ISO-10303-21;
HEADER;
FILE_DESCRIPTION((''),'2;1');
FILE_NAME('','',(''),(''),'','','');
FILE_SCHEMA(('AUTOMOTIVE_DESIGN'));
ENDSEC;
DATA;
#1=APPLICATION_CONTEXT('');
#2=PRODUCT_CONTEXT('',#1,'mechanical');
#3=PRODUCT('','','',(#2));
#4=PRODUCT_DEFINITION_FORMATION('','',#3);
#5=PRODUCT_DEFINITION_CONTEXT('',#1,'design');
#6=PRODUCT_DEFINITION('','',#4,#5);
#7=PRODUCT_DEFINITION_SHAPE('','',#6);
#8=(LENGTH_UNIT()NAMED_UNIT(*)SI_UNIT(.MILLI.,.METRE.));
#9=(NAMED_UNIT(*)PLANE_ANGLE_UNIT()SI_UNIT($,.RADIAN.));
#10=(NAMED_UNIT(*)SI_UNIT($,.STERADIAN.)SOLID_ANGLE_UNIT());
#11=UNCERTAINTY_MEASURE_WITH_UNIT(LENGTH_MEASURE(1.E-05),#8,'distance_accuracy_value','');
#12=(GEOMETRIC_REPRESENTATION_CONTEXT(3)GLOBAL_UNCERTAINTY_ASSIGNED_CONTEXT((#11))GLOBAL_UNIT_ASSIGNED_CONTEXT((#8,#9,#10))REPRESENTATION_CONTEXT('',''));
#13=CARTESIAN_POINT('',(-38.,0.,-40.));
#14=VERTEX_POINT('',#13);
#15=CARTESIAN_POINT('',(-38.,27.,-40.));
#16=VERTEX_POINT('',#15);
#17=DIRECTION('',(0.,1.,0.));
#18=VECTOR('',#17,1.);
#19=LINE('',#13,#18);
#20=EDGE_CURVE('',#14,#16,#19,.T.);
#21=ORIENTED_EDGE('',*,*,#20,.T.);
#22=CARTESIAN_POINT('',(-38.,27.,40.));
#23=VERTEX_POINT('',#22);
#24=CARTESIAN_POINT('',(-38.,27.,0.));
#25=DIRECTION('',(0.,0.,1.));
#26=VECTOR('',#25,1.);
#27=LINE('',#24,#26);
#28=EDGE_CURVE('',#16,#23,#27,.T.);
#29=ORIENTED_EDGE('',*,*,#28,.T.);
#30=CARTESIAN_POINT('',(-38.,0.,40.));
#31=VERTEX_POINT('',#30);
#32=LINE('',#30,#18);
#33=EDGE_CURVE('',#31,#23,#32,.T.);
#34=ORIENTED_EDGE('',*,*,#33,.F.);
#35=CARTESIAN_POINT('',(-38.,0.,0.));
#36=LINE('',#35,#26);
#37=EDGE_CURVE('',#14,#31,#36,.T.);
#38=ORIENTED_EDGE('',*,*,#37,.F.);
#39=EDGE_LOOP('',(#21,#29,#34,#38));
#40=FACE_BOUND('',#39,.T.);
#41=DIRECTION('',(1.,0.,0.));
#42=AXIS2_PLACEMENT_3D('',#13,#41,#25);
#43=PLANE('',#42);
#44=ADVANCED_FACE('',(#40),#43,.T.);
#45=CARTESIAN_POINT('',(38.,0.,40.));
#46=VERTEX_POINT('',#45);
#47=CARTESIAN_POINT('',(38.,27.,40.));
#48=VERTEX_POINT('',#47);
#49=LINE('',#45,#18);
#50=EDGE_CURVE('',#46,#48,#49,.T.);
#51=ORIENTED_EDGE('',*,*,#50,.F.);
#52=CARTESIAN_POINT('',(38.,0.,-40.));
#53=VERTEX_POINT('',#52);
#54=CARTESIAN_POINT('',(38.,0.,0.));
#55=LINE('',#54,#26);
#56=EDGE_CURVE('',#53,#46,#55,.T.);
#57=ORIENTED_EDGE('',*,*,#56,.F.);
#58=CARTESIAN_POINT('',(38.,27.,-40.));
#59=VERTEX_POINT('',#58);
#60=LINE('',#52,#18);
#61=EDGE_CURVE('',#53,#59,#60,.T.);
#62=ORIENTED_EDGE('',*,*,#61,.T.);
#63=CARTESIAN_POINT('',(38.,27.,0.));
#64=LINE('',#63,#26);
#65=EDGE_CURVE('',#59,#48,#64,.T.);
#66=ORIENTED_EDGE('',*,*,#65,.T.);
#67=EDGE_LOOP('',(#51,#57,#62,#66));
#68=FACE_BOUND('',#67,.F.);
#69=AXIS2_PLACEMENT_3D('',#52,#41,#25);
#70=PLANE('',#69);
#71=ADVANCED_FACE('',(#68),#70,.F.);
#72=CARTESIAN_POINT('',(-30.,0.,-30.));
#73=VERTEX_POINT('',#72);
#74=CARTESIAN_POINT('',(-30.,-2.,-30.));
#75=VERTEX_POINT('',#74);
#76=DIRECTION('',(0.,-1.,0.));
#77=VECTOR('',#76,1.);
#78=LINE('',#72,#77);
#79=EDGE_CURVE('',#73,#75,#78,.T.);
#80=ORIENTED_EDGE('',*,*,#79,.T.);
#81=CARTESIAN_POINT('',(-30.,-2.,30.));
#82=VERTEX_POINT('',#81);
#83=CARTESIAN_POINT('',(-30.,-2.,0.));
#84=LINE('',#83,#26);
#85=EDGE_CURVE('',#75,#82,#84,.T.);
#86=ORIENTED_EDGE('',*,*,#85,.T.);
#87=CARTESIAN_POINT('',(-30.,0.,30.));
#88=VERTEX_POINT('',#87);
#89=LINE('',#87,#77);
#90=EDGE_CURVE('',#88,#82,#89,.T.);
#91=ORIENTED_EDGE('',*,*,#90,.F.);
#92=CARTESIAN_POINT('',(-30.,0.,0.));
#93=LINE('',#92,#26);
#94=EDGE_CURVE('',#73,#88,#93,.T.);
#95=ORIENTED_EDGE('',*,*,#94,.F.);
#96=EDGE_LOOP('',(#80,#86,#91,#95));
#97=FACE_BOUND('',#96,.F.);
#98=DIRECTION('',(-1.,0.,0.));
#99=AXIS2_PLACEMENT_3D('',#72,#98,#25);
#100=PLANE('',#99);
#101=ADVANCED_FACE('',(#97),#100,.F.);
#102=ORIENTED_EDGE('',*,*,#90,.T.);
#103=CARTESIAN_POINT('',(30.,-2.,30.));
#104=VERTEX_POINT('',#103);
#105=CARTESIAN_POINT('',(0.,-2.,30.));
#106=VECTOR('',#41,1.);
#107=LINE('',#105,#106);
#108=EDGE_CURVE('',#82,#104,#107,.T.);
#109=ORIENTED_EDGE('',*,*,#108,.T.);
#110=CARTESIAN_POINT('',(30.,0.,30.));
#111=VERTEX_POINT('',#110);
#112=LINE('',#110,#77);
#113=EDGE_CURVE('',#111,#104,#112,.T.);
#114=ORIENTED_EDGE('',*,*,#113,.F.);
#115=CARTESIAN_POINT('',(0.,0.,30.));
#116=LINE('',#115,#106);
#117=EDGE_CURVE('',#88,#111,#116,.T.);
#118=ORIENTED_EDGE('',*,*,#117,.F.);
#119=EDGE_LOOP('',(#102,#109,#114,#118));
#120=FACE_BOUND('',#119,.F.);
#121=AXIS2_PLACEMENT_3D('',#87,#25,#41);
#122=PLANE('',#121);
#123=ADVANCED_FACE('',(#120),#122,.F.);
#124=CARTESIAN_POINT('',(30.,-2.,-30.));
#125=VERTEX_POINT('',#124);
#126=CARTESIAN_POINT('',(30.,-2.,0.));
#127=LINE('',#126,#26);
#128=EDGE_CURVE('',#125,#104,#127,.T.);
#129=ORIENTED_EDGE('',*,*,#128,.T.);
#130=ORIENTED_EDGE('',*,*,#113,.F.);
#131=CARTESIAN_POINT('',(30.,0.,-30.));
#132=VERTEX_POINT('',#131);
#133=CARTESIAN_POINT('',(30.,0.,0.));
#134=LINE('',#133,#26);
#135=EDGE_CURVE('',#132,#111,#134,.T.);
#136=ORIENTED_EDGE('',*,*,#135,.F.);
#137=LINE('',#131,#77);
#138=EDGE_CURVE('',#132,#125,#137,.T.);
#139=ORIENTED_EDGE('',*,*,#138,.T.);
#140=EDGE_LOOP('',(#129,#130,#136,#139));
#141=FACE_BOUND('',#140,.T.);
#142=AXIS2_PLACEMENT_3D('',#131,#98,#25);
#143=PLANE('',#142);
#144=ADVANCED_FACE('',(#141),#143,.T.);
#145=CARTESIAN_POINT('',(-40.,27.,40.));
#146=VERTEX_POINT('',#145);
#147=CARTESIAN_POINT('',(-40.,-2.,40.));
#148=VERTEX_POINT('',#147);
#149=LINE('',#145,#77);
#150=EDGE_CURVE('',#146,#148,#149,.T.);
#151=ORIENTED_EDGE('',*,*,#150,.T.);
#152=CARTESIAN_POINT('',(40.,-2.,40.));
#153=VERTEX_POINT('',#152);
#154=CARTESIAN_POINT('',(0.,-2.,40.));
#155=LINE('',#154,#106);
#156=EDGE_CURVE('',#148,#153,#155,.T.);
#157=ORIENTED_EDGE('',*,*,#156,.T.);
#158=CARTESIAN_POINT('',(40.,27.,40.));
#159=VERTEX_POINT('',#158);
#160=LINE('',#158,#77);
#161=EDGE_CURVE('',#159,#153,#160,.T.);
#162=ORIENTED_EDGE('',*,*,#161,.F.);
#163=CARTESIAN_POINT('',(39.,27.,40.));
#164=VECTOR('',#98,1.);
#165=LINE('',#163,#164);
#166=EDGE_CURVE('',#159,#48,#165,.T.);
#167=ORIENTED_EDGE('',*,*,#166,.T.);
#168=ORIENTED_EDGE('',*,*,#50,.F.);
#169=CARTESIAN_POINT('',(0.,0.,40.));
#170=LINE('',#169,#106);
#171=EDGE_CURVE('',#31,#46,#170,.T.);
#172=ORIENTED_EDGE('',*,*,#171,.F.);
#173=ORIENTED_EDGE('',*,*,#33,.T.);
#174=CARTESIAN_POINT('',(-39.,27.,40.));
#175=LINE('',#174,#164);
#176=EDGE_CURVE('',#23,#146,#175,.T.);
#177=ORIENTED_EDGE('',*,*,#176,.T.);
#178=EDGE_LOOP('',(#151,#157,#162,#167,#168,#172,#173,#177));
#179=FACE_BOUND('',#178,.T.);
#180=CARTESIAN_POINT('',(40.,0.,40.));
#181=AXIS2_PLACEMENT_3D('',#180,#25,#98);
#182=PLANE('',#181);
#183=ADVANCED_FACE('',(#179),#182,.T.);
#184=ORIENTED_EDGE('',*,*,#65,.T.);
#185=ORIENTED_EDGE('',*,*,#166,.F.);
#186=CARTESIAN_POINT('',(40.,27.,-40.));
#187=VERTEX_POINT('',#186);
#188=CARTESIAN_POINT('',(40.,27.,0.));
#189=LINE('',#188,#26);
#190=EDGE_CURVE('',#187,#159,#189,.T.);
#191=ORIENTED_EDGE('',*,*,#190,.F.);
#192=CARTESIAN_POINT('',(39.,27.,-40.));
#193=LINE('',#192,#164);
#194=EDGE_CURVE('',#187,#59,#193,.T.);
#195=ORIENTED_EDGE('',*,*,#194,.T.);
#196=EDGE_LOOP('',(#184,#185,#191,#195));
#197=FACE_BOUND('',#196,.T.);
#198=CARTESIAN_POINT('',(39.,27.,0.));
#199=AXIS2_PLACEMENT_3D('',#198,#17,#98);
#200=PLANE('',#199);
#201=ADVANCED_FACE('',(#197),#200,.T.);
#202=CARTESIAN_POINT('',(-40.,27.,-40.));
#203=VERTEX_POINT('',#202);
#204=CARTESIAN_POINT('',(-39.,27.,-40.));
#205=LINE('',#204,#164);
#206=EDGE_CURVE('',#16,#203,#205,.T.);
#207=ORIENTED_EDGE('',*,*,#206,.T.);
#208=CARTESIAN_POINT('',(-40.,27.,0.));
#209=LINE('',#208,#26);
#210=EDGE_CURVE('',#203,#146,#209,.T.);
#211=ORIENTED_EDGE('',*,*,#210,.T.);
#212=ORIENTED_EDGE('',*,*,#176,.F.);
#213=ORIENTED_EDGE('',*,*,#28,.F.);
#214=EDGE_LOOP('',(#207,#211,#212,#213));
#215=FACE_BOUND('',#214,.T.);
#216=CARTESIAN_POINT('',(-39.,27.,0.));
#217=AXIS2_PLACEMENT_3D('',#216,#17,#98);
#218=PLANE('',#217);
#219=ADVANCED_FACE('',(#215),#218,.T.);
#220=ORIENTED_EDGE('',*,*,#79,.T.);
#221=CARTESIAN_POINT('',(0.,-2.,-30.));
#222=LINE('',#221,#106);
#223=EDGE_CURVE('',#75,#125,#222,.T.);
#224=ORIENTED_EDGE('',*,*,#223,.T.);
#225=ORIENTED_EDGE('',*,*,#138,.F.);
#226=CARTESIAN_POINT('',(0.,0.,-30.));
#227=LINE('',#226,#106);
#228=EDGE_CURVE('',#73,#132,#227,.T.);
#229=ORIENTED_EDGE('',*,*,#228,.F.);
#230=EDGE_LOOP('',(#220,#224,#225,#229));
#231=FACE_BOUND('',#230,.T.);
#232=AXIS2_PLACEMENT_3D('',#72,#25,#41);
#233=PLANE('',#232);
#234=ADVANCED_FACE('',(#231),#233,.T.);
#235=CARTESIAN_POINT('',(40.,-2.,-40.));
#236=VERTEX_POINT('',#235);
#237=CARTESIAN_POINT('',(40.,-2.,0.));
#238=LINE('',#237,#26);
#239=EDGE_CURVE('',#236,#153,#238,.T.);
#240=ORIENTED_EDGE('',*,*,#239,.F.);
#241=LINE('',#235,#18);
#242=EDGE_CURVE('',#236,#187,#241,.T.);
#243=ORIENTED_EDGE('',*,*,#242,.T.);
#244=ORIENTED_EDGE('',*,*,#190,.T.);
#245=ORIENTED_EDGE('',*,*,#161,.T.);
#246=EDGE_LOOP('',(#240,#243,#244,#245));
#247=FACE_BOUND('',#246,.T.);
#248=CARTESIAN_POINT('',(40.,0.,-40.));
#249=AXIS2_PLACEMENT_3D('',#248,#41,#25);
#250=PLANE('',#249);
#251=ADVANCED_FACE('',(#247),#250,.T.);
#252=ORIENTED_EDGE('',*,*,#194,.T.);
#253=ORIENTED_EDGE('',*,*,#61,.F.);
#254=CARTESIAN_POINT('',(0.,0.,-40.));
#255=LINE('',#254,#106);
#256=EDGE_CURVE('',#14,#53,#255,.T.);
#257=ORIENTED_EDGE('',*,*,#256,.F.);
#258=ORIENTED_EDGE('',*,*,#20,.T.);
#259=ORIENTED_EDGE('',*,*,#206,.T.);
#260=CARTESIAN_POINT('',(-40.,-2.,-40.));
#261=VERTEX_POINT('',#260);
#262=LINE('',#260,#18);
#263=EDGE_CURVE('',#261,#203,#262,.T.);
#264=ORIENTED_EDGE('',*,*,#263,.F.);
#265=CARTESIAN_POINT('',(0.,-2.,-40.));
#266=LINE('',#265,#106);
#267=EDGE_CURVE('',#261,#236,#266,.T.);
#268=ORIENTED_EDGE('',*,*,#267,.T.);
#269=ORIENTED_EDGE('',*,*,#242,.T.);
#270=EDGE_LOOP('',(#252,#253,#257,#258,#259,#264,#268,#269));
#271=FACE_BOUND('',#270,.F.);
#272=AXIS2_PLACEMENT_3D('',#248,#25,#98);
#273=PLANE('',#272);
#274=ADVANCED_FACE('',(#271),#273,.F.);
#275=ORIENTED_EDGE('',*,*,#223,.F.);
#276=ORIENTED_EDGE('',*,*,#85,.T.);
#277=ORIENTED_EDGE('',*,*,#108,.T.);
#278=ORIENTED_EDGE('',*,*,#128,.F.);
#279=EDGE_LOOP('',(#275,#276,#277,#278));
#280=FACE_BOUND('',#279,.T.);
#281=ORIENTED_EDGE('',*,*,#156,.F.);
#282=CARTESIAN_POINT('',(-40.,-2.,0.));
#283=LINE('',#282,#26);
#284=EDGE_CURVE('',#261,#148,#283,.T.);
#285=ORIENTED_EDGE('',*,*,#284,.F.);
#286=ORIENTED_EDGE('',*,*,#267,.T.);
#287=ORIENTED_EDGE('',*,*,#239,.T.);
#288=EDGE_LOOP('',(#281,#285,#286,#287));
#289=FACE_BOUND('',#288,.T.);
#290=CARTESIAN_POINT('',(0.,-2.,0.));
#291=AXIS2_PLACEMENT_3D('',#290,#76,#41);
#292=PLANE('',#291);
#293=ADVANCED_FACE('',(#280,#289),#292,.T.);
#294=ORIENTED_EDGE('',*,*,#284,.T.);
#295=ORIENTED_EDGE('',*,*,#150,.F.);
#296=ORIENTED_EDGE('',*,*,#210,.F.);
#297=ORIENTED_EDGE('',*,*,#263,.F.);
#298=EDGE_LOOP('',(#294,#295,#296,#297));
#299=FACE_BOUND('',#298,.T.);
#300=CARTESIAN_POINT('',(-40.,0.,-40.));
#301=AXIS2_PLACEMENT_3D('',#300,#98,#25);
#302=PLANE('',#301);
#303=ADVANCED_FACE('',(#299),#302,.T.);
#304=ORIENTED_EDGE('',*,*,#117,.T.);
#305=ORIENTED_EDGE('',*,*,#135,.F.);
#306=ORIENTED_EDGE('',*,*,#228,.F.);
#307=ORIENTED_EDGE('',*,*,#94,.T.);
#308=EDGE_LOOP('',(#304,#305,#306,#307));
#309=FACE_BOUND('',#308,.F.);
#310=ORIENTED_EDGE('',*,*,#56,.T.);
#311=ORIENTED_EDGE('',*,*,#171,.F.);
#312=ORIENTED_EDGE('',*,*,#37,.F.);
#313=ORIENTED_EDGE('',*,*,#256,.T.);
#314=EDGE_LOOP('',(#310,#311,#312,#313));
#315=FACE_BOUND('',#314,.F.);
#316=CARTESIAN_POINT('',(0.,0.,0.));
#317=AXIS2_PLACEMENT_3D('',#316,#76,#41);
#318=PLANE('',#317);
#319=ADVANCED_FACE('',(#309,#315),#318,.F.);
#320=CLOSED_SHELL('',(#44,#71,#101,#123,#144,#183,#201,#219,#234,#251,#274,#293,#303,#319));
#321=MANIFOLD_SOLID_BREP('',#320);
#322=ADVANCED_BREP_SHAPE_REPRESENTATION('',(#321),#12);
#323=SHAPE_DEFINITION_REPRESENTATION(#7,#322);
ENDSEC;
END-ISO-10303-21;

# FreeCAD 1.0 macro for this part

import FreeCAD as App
import Part
import Sketcher

V = App.Vector
Q = App.Units.Quantity

doc = App.newDocument("Part")
params = doc.addObject("Spreadsheet::Sheet", "Params")
for row, (alias, value) in enumerate([
    ("sketch1_width", "80 mm"),
    ("sketch1_width2", "60 mm"),
    ("pad1_length", "2 mm"),
    ("sketch2_width", "2 mm"),
    ("sketch2_height", "80 mm"),
    ("pad2_length", "27 mm"),
], start=1):
    params.set(f"A{row}", alias)
    params.set(f"B{row}", "=" + value)
    params.setAlias(f"B{row}", alias)

body = doc.addObject("PartDesign::Body", "Body")

# Sketch on XZ plane
sketch1 = body.newObject("Sketcher::SketchObject", "Sketch")
sketch1.AttachmentSupport = (doc.getObject("XZ_Plane"), [""])
sketch1.MapMode = "FlatFace"
sketch1.addGeometry([
    Part.LineSegment(V(-40, 40, 0), V(-40, -40, 0)),  # 0
    Part.LineSegment(V(-40, -40, 0), V(40, -40, 0)),  # 1
    Part.LineSegment(V(40, -40, 0), V(40, 40, 0)),  # 2
    Part.LineSegment(V(40, 40, 0), V(-40, 40, 0)),  # 3
    Part.LineSegment(V(30, -30, 0), V(-30, -30, 0)),  # 4
    Part.LineSegment(V(-30, -30, 0), V(-30, 30, 0)),  # 5
    Part.LineSegment(V(-30, 30, 0), V(30, 30, 0)),  # 6
    Part.LineSegment(V(30, 30, 0), V(30, -30, 0)),  # 7
], False)
sketch1.addConstraint([
    Sketcher.Constraint("Coincident", 0, 2, 1, 1),
    Sketcher.Constraint("Coincident", 1, 2, 2, 1),
    Sketcher.Constraint("Coincident", 2, 2, 3, 1),
    Sketcher.Constraint("Coincident", 3, 2, 0, 1),
    Sketcher.Constraint("Coincident", 4, 2, 5, 1),
    Sketcher.Constraint("Coincident", 5, 2, 6, 1),
    Sketcher.Constraint("Coincident", 6, 2, 7, 1),
    Sketcher.Constraint("Coincident", 7, 2, 4, 1),
    Sketcher.Constraint("Vertical", 0),
    Sketcher.Constraint("Horizontal", 1),
    Sketcher.Constraint("Vertical", 2),
    Sketcher.Constraint("Horizontal", 3),
    Sketcher.Constraint("Horizontal", 4),
    Sketcher.Constraint("Vertical", 5),
    Sketcher.Constraint("Horizontal", 6),
    Sketcher.Constraint("Vertical", 7),
    Sketcher.Constraint("Symmetric", 0, 2, 2, 2, -1, 1),
    Sketcher.Constraint("Symmetric", 4, 2, 6, 2, -1, 1),
    Sketcher.Constraint("Equal", 3, 0),
    Sketcher.Constraint("Equal", 6, 5),
    Sketcher.Constraint("DistanceX", 1, 1, 1, 2, Q("80 mm")),
    Sketcher.Constraint("DistanceX", 4, 2, 4, 1, Q("60 mm")),
])
sketch1.setExpression("Constraints[20]", "Params.sketch1_width")
sketch1.setExpression("Constraints[21]", "Params.sketch1_width2")
pad1 = body.newObject("PartDesign::Pad", "Pad")
pad1.Profile = sketch1
pad1.setExpression("Length", "Params.pad1_length")

# Sketch on XZ plane
sketch2 = body.newObject("Sketcher::SketchObject", "Sketch001")
sketch2.AttachmentSupport = (doc.getObject("XZ_Plane"), [""])
sketch2.MapMode = "FlatFace"
sketch2.addGeometry([
    Part.LineSegment(V(40, 40, 0), V(40, -40, 0)),  # 0
    Part.LineSegment(V(40, -40, 0), V(38, -40, 0)),  # 1
    Part.LineSegment(V(38, -40, 0), V(38, 40, 0)),  # 2
    Part.LineSegment(V(38, 40, 0), V(40, 40, 0)),  # 3
    Part.LineSegment(V(-38, 40, 0), V(-38, -40, 0)),  # 4
    Part.LineSegment(V(-38, -40, 0), V(-40, -40, 0)),  # 5
    Part.LineSegment(V(-40, -40, 0), V(-40, 40, 0)),  # 6
    Part.LineSegment(V(-40, 40, 0), V(-38, 40, 0)),  # 7
], False)
sketch2.addConstraint([
    Sketcher.Constraint("Coincident", 0, 2, 1, 1),
    Sketcher.Constraint("Coincident", 1, 2, 2, 1),
    Sketcher.Constraint("Coincident", 2, 2, 3, 1),
    Sketcher.Constraint("Coincident", 3, 2, 0, 1),
    Sketcher.Constraint("Coincident", 4, 2, 5, 1),
    Sketcher.Constraint("Coincident", 5, 2, 6, 1),
    Sketcher.Constraint("Coincident", 6, 2, 7, 1),
    Sketcher.Constraint("Coincident", 7, 2, 4, 1),
    Sketcher.Constraint("Vertical", 0),
    Sketcher.Constraint("Horizontal", 1),
    Sketcher.Constraint("Vertical", 2),
    Sketcher.Constraint("Horizontal", 3),
    Sketcher.Constraint("Vertical", 4),
    Sketcher.Constraint("Horizontal", 5),
    Sketcher.Constraint("Vertical", 6),
    Sketcher.Constraint("Horizontal", 7),
    Sketcher.Constraint("Symmetric", 2, 2, 4, 2, -1, 1),
    Sketcher.Constraint("Symmetric", 0, 2, 6, 2, -1, 1),
    Sketcher.Constraint("Horizontal", 1, 2, 4, 2),
    Sketcher.Constraint("DistanceX", 1, 2, 1, 1, Q("2 mm")),
    Sketcher.Constraint("DistanceY", 0, 2, 0, 1, Q("80 mm")),
    Sketcher.Constraint("DistanceX", -1, 1, 0, 2, Q("40 mm")),
])
sketch2.setExpression("Constraints[19]", "Params.sketch2_width")
sketch2.setExpression("Constraints[20]", "Params.sketch2_height")
pad2 = body.newObject("PartDesign::Pad", "Pad001")
pad2.Profile = sketch2
pad2.setExpression("Length", "Params.pad2_length")
pad2.Reversed = True

doc.recompute()
